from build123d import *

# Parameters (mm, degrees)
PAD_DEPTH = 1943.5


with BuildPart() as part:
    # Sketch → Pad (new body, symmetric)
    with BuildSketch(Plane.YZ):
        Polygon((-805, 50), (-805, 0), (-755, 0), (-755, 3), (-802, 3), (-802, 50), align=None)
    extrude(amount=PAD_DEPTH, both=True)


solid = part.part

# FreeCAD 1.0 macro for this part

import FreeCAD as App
import Part
import Sketcher
Q = App.Units.Quantity


def add_polygon(sketch, points):
    """Adds a closed chain of lines whose ends are joined by coincident constraints."""
    first, n = sketch.GeometryCount, len(points)
    for a, b in zip(points, points[1:] + points[:1]):
        sketch.addGeometry(Part.LineSegment(App.Vector(*a, 0), App.Vector(*b, 0)), False)
    for i in range(n):
        sketch.addConstraint(Sketcher.Constraint("Coincident", first + i, 2, first + (i + 1) % n, 1))

doc = App.newDocument("Part")
body = doc.addObject("PartDesign::Body", "Body")

# Sketch on YZ plane
sketch1 = body.newObject("Sketcher::SketchObject", "Sketch")
sketch1.AttachmentSupport = (doc.getObject("YZ_Plane"), [""])
sketch1.MapMode = "FlatFace"
add_polygon(sketch1, [(-805, 50), (-805, 0), (-755, 0), (-755, 3), (-802, 3), (-802, 50)])  # lines 0-5
sketch1.addConstraint(Sketcher.Constraint("Vertical", 0))
sketch1.addConstraint(Sketcher.Constraint("Horizontal", 1))
sketch1.addConstraint(Sketcher.Constraint("Vertical", 2))
sketch1.addConstraint(Sketcher.Constraint("Horizontal", 3))
sketch1.addConstraint(Sketcher.Constraint("Vertical", 4))
sketch1.addConstraint(Sketcher.Constraint("Horizontal", 5))
sketch1.addConstraint(Sketcher.Constraint("PointOnObject", 0, 2, -1))
sketch1.addConstraint(Sketcher.Constraint("Equal", 1, 0))
sketch1.addConstraint(Sketcher.Constraint("Equal", 5, 2))
sketch1.addConstraint(Sketcher.Constraint("DistanceX", 1, 1, 1, 2, Q("50 mm")))
sketch1.addConstraint(Sketcher.Constraint("DistanceX", 3, 2, 3, 1, Q("47 mm")))
sketch1.addConstraint(Sketcher.Constraint("DistanceX", 0, 2, -1, 1, Q("805 mm")))
pad1 = body.newObject("PartDesign::Pad", "Pad")
pad1.Profile = sketch1
pad1.Length = 3887
pad1.Midplane = True

doc.recompute()
